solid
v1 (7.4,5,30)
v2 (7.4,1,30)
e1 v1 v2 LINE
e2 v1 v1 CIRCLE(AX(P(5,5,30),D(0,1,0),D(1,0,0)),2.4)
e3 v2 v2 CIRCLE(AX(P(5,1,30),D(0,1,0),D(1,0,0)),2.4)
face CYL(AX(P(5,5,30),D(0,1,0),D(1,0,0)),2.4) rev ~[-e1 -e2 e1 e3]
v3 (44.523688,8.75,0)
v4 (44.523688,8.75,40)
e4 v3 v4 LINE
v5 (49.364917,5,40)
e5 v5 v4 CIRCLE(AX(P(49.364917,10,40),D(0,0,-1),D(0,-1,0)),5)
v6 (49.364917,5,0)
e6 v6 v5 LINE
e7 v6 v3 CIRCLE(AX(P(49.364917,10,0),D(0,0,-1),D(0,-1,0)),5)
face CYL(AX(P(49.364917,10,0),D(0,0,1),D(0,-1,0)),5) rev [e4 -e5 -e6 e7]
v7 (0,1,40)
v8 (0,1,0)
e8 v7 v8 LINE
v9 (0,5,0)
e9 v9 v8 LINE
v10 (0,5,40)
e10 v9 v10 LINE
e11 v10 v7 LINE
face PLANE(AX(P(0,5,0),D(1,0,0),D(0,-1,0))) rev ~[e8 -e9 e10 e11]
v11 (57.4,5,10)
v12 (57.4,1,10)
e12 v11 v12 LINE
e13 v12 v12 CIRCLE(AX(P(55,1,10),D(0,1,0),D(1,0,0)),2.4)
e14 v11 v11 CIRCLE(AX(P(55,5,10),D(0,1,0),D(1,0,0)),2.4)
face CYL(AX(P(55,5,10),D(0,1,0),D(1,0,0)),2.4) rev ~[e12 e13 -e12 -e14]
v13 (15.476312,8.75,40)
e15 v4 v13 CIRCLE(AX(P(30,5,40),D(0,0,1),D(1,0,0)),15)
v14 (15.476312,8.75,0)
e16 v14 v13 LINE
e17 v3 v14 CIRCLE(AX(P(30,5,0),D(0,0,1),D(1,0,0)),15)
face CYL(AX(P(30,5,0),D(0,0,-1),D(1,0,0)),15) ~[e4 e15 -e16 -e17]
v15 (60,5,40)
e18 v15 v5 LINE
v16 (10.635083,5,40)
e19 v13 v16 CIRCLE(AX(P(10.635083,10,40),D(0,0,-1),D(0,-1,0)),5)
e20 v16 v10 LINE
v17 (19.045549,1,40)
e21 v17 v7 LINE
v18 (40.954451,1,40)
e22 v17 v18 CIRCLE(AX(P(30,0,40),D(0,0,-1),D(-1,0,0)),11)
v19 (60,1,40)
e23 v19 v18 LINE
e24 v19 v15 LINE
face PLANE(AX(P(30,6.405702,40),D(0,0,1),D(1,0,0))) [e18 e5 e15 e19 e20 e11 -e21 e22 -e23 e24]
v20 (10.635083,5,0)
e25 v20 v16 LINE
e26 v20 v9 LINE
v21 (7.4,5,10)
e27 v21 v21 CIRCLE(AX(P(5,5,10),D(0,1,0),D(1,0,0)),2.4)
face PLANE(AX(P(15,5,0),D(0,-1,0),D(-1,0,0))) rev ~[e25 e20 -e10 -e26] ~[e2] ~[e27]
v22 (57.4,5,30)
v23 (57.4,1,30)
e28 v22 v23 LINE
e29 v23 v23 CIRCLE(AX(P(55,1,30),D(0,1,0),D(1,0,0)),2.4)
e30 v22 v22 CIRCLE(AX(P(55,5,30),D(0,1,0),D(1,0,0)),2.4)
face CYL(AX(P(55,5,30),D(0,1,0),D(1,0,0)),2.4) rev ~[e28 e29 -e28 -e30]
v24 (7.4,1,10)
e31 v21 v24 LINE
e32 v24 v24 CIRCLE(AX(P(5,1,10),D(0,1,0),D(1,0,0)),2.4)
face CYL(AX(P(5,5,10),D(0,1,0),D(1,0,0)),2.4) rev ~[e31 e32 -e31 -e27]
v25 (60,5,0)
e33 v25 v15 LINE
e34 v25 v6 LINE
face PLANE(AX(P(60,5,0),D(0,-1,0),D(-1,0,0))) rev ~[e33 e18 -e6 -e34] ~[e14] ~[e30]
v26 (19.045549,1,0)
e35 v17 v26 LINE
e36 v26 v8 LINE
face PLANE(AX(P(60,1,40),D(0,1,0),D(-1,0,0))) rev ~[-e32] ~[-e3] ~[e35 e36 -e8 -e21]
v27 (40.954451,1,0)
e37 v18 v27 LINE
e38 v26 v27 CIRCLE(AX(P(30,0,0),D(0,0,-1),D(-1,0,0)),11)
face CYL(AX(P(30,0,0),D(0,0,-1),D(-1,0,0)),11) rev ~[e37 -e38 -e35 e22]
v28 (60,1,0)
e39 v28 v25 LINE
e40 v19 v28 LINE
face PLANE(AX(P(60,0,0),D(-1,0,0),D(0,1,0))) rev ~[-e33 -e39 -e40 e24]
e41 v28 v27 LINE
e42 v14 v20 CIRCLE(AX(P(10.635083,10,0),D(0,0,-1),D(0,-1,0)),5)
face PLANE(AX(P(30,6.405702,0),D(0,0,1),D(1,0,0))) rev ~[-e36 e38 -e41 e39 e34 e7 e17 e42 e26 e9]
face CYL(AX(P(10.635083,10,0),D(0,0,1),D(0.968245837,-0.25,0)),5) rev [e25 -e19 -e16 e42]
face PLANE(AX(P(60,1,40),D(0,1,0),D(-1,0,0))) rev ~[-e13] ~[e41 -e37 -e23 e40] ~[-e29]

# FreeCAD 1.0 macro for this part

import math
import FreeCAD as App
import Part
import Sketcher
from FreeCAD import Vector


def edges_at(feature, points):
    """Names of the edges that pass closest to the given points."""
    edges = feature.Shape.Edges
    near = lambda p: min(range(len(edges)), key=lambda i: edges[i].distToShape(Part.Vertex(*p))[0])
    return sorted({f"Edge{near(p) + 1}" for p in points})

doc = App.newDocument("Part")
params = doc.addObject("Spreadsheet::Sheet", "Params")
for row, (alias, value) in enumerate([
    ("sketch1_radius", "15 mm"),
    ("sketch1_radius2", "11 mm"),
    ("sketch1_width", "15 mm"),
    ("sketch1_height", "5 mm"),
    ("pad1_length", "40 mm"),
    ("sketch2_diameter", "4.8 mm"),
    ("fillet_radius", "5 mm"),
    ("sketch3_width", "60 mm"),
    ("sketch3_height", "1 mm"),
    ("pocket2_length", "40 mm"),
], start=1):
    params.set(f"A{row}", alias)
    params.set(f"B{row}", "=" + value)
    params.setAlias(f"B{row}", alias)

body = doc.addObject("PartDesign::Body", "Body")

sketch1 = body.newObject("Sketcher::SketchObject", "Sketch")
sketch1.AttachmentSupport = (doc.getObject("XY_Plane"), [""])
sketch1.MapMode = "FlatFace"
sketch1.addGeometry([
    Part.LineSegment(Vector(60, 0, 0), Vector(60, 5, 0)),
    Part.LineSegment(Vector(60, 5, 0), Vector(45, 5, 0)),
    Part.ArcOfCircle(Part.Circle(Vector(30, 5, 0), Vector(0, 0, 1), 15), math.radians(0), math.radians(180)),
    Part.LineSegment(Vector(15, 5, 0), Vector(0, 5, 0)),
    Part.LineSegment(Vector(0, 5, 0), Vector(0, 0, 0)),
    Part.LineSegment(Vector(0, 0, 0), Vector(19, 0, 0)),
    Part.ArcOfCircle(Part.Circle(Vector(30, 0, 0), Vector(0, 0, 1), 11), math.radians(0), math.radians(180)),
    Part.LineSegment(Vector(41, 0, 0), Vector(60, 0, 0)),
], False)
sketch1.addConstraint([
    Sketcher.Constraint("Coincident", 0, 2, 1, 1),
    Sketcher.Constraint("Coincident", 1, 2, 2, 1),
    Sketcher.Constraint("Coincident", 2, 2, 3, 1),
    Sketcher.Constraint("Coincident", 3, 2, 4, 1),
    Sketcher.Constraint("Coincident", 4, 2, 5, 1),
    Sketcher.Constraint("Coincident", 5, 2, 6, 2),
    Sketcher.Constraint("Coincident", 6, 1, 7, 1),
    Sketcher.Constraint("Coincident", 7, 2, 0, 1),
    Sketcher.Constraint("Vertical", 0),
    Sketcher.Constraint("Horizontal", 1),
    Sketcher.Constraint("Horizontal", 3),
    Sketcher.Constraint("Vertical", 4),
    Sketcher.Constraint("Horizontal", 5),
    Sketcher.Constraint("Horizontal", 7),
    Sketcher.Constraint("Coincident", 4, 2, -1, 1),
    Sketcher.Constraint("PointOnObject", 6, 3, -1),
    Sketcher.Constraint("PointOnObject", 6, 1, -1),
    Sketcher.Constraint("Horizontal", 2, 3, 0, 2),
    Sketcher.Constraint("Horizontal", 1, 2, 2, 2),
    Sketcher.Constraint("Vertical", 2, 3, 6, 3),
    Sketcher.Constraint("Equal", 1, 3),
    Sketcher.Constraint("Radius", 2, 15.0),
    Sketcher.Constraint("Radius", 6, 11.0),
    Sketcher.Constraint("DistanceX", 1, 2, 1, 1, 15.0),
    Sketcher.Constraint("DistanceY", 0, 1, 0, 2, 5.0),
])
sketch1.setExpression("Constraints[21]", "Params.sketch1_radius")
sketch1.setExpression("Constraints[22]", "Params.sketch1_radius2")
sketch1.setExpression("Constraints[23]", "Params.sketch1_width")
sketch1.setExpression("Constraints[24]", "Params.sketch1_height")
pad1 = body.newObject("PartDesign::Pad", "Pad")
pad1.Profile = sketch1
pad1.setExpression("Length", "Params.pad1_length")

sketch2 = body.newObject("Sketcher::SketchObject", "Sketch001")
sketch2.AttachmentSupport = (doc.getObject("XZ_Plane"), [""])
sketch2.MapMode = "FlatFace"
sketch2.AttachmentOffset = App.Placement(Vector(0, 0, -5), App.Rotation())
sketch2.addGeometry([
    Part.Circle(Vector(5, 10, 0), Vector(0, 0, 1), 2.4),
    Part.Circle(Vector(55, 10, 0), Vector(0, 0, 1), 2.4),
    Part.Circle(Vector(55, 30, 0), Vector(0, 0, 1), 2.4),
    Part.Circle(Vector(5, 30, 0), Vector(0, 0, 1), 2.4),
], False)
sketch2.addConstraint([
    Sketcher.Constraint("Equal", 0, 1),
    Sketcher.Constraint("Equal", 1, 2),
    Sketcher.Constraint("Equal", 2, 3),
    Sketcher.Constraint("Horizontal", 0, 3, 1, 3),
    Sketcher.Constraint("Horizontal", 2, 3, 3, 3),
    Sketcher.Constraint("Vertical", 1, 3, 2, 3),
    Sketcher.Constraint("Vertical", 0, 3, 3, 3),
    Sketcher.Constraint("Diameter", 0, 4.8),
    Sketcher.Constraint("DistanceX", -1, 1, 0, 3, 5.0),
    Sketcher.Constraint("DistanceY", -1, 1, 0, 3, 10.0),
    Sketcher.Constraint("DistanceX", -1, 1, 1, 3, 55.0),
    Sketcher.Constraint("DistanceY", -1, 1, 2, 3, 30.0),
])
sketch2.setExpression("Constraints[7]", "Params.sketch2_diameter")
pocket1 = body.newObject("PartDesign::Pocket", "Pocket")
pocket1.Profile = sketch2
pocket1.Type = "ThroughAll"
pocket1.Reversed = True
doc.recompute()

fillet = body.newObject("PartDesign::Fillet", "Fillet")
fillet.Base = (pocket1, edges_at(pocket1, [(15, 5, 20), (45, 5, 20)]))
fillet.setExpression("Radius", "Params.fillet_radius")

sketch3 = body.newObject("Sketcher::SketchObject", "Sketch002")
sketch3.AttachmentSupport = (doc.getObject("XY_Plane"), [""])
sketch3.MapMode = "FlatFace"
sketch3.AttachmentOffset = App.Placement(Vector(0, 0, 40), App.Rotation())
sketch3.addGeometry([
    Part.LineSegment(Vector(60, 1, 0), Vector(60, 0, 0)),
    Part.LineSegment(Vector(60, 0, 0), Vector(0, 0, 0)),
    Part.LineSegment(Vector(0, 0, 0), Vector(0, 1, 0)),
    Part.LineSegment(Vector(0, 1, 0), Vector(60, 1, 0)),
], False)
sketch3.addConstraint([
    Sketcher.Constraint("Coincident", 0, 2, 1, 1),
    Sketcher.Constraint("Coincident", 1, 2, 2, 1),
    Sketcher.Constraint("Coincident", 2, 2, 3, 1),
    Sketcher.Constraint("Coincident", 3, 2, 0, 1),
    Sketcher.Constraint("Vertical", 0),
    Sketcher.Constraint("Horizontal", 1),
    Sketcher.Constraint("Vertical", 2),
    Sketcher.Constraint("Horizontal", 3),
    Sketcher.Constraint("Coincident", 1, 2, -1, 1),
    Sketcher.Constraint("DistanceX", 1, 2, 1, 1, 60.0),
    Sketcher.Constraint("DistanceY", 0, 2, 0, 1, 1.0),
])
sketch3.setExpression("Constraints[9]", "Params.sketch3_width")
sketch3.setExpression("Constraints[10]", "Params.sketch3_height")
pocket2 = body.newObject("PartDesign::Pocket", "Pocket001")
pocket2.Profile = sketch3
pocket2.setExpression("Length", "Params.pocket2_length")

doc.recompute()
